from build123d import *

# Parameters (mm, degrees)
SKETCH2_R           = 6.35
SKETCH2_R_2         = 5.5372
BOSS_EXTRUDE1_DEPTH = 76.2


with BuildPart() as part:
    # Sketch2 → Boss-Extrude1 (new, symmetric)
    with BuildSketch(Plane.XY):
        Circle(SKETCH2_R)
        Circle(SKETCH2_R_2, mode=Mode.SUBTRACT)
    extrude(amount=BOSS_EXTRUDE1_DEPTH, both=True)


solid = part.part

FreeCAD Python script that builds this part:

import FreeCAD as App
import Part
import Sketcher

V = App.Vector
Q = App.Units.Quantity

doc = App.newDocument("Part")
body = doc.addObject("PartDesign::Body", "Body")

# Sketch on XY plane
sketch1 = body.newObject("Sketcher::SketchObject", "Sketch")
sketch1.AttachmentSupport = (doc.getObject("XY_Plane"), [""])
sketch1.MapMode = "FlatFace"
sketch1.addGeometry([
    Part.Circle(V(0, 0, 0), V(0, 0, 1), 6),
    Part.Circle(V(0, 0, 0), V(0, 0, 1), 6),
], False)
sketch1.addConstraint([
    Sketcher.Constraint("Coincident", 0, 3, -1, 1),
    Sketcher.Constraint("Coincident", 1, 3, -1, 1),
    Sketcher.Constraint("Diameter", 0, Q("0.5 in")),
    Sketcher.Constraint("Diameter", 1, Q("0.436 in")),
])
pad1 = body.newObject("PartDesign::Pad", "Pad")
pad1.Profile = sketch1
pad1.Length = Q("6 in")
pad1.Midplane = True

doc.recompute()
